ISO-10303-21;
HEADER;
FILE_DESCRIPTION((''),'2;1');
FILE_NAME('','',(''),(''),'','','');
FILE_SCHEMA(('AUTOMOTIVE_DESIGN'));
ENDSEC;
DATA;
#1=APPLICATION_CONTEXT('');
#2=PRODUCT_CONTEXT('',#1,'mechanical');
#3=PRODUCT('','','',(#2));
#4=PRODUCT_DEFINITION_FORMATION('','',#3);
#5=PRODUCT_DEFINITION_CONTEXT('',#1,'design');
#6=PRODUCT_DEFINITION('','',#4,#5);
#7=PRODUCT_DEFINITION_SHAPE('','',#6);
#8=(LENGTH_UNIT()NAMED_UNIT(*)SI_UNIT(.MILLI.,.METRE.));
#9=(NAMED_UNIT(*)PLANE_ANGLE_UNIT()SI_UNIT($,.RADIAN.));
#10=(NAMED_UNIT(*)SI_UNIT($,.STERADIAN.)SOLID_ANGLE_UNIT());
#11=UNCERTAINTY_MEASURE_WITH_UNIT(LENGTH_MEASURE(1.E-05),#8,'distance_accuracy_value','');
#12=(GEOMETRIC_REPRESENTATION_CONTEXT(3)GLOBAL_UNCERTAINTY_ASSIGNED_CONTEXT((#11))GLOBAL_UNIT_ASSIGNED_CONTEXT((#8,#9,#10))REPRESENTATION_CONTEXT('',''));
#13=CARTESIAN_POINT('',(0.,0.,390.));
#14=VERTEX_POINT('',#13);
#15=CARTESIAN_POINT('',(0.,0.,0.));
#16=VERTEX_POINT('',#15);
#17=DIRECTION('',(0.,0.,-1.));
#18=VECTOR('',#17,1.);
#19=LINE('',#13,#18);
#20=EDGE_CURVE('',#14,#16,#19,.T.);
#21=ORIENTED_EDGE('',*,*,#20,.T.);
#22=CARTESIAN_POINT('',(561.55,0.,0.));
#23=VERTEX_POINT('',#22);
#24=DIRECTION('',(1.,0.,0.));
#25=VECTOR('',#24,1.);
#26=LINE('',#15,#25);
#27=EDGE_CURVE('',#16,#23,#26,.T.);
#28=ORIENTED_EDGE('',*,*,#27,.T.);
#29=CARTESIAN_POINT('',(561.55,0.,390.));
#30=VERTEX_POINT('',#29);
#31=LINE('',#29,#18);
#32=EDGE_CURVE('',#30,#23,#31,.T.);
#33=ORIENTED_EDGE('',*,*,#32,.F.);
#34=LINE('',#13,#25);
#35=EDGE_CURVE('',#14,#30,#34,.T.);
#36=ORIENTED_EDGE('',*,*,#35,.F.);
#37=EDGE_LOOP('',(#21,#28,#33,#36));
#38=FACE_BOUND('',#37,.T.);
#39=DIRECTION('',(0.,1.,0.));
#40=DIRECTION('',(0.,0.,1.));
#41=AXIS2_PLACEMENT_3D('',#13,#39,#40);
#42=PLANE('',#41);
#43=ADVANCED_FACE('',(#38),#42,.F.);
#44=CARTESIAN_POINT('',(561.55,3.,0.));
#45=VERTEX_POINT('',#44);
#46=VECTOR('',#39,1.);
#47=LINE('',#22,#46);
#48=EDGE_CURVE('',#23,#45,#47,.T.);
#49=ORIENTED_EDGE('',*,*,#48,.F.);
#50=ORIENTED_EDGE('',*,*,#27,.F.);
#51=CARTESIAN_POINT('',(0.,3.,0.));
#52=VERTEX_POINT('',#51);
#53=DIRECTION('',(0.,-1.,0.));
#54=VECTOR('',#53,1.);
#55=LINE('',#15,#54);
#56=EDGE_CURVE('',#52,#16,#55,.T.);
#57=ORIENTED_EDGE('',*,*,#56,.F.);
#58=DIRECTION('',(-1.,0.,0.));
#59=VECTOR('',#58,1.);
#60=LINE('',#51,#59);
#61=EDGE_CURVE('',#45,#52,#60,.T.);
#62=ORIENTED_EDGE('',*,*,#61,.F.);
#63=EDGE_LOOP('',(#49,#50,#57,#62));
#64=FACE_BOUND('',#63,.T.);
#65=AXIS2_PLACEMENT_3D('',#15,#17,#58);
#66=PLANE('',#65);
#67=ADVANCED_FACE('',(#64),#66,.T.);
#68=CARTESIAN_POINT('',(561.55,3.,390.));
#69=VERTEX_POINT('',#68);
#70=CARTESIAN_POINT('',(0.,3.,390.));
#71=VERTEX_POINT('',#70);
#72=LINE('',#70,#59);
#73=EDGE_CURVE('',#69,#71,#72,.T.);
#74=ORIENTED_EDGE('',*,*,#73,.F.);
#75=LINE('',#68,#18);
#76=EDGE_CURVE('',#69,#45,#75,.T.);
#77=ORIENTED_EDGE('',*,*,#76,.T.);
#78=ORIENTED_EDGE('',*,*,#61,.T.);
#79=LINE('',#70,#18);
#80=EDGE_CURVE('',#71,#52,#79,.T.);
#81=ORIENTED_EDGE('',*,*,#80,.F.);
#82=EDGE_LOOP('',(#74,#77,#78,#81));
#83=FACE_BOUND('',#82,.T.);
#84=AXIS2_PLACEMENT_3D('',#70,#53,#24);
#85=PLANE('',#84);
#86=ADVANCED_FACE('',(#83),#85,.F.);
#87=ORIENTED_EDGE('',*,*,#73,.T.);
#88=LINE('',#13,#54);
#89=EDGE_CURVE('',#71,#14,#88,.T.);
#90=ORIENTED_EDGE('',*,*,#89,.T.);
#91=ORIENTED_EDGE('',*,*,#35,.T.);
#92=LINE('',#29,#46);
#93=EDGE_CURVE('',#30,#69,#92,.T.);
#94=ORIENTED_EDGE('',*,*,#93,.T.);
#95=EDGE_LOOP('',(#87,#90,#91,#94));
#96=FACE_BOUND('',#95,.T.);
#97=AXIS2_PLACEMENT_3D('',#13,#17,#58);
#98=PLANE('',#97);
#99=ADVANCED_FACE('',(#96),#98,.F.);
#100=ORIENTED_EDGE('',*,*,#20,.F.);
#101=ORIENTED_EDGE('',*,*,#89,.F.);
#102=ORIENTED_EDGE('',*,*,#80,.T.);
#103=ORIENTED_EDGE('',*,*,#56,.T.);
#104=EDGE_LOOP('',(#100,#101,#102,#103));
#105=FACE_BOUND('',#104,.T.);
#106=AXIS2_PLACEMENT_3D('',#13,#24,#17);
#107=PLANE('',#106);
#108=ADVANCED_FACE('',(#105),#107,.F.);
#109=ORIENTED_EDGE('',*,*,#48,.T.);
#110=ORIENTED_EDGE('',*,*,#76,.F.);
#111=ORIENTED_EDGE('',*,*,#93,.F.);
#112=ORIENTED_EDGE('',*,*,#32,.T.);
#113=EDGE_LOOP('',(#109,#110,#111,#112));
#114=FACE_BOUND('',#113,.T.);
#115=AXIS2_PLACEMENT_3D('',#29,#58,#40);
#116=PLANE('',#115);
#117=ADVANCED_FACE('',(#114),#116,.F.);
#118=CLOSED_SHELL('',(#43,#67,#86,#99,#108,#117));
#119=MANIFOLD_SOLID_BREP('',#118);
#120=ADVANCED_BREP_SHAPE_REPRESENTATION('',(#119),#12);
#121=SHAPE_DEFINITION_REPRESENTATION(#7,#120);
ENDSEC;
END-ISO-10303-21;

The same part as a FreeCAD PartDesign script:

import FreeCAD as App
import Part
import Sketcher
Q = App.Units.Quantity

doc = App.newDocument("Part")
body = doc.addObject("PartDesign::Body", "Body")

# Sketch on XY plane
sketch1 = body.newObject("Sketcher::SketchObject", "Sketch")
sketch1.AttachmentSupport = (doc.getObject("XY_Plane"), [""])
sketch1.MapMode = "FlatFace"
sketch1.addGeometry(Part.LineSegment(App.Vector(0, 3, 0), App.Vector(0, 0, 0)), False)
sketch1.addGeometry(Part.LineSegment(App.Vector(0, 0, 0), App.Vector(561.55, 0, 0)), False)
sketch1.addGeometry(Part.LineSegment(App.Vector(561.55, 0, 0), App.Vector(561.55, 3, 0)), False)
sketch1.addGeometry(Part.LineSegment(App.Vector(561.55, 3, 0), App.Vector(0, 3, 0)), False)
sketch1.addConstraint(Sketcher.Constraint("Coincident", 0, 2, 1, 1))
sketch1.addConstraint(Sketcher.Constraint("Coincident", 1, 2, 2, 1))
sketch1.addConstraint(Sketcher.Constraint("Coincident", 2, 2, 3, 1))
sketch1.addConstraint(Sketcher.Constraint("Coincident", 3, 2, 0, 1))
sketch1.addConstraint(Sketcher.Constraint("Vertical", 0))
sketch1.addConstraint(Sketcher.Constraint("Horizontal", 1))
sketch1.addConstraint(Sketcher.Constraint("Vertical", 2))
sketch1.addConstraint(Sketcher.Constraint("Horizontal", 3))
sketch1.addConstraint(Sketcher.Constraint("Coincident", 0, 2, -1, 1))
sketch1.addConstraint(Sketcher.Constraint("DistanceY", 0, 2, 0, 1, Q("3 mm")))
sketch1.addConstraint(Sketcher.Constraint("DistanceX", 1, 1, 1, 2, Q("561.55 mm")))
pad1 = body.newObject("PartDesign::Pad", "Pad")
pad1.Profile = sketch1
pad1.Length = 390

doc.recompute()
